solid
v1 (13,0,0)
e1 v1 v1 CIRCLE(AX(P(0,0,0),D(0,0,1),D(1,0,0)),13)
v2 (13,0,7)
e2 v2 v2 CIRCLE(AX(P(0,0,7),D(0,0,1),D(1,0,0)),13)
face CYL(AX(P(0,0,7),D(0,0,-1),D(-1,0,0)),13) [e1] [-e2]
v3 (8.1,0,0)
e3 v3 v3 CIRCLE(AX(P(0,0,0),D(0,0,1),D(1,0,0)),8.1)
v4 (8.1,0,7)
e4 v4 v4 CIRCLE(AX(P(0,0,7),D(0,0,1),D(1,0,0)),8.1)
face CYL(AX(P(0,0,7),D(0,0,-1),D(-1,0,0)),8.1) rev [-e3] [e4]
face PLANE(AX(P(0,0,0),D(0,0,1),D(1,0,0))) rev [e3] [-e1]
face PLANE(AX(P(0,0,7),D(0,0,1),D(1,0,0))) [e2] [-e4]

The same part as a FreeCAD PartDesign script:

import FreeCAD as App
import Part
import Sketcher

V = App.Vector
Q = App.Units.Quantity

doc = App.newDocument("Part")
params = doc.addObject("Spreadsheet::Sheet", "Params")
for row, (alias, value) in enumerate([
    ("sketch1_diameter", "26 mm"),
    ("sketch1_diameter2", "16.2 mm"),
    ("pad1_length", "7 mm"),
], start=1):
    params.set(f"A{row}", alias)
    params.set(f"B{row}", "=" + value)
    params.setAlias(f"B{row}", alias)

body = doc.addObject("PartDesign::Body", "Body")

# Sketch on XY plane
sketch1 = body.newObject("Sketcher::SketchObject", "Sketch")
sketch1.AttachmentSupport = (doc.getObject("XY_Plane"), [""])
sketch1.MapMode = "FlatFace"
sketch1.addGeometry(Part.Circle(V(0, 0, 0), V(0, 0, 1), 13), False)
sketch1.addGeometry(Part.Circle(V(0, 0, 0), V(0, 0, 1), 8), False)
sketch1.addConstraint(Sketcher.Constraint("Coincident", 0, 3, -1, 1))
sketch1.addConstraint(Sketcher.Constraint("Coincident", 1, 3, -1, 1))
sketch1.addConstraint(Sketcher.Constraint("Diameter", 0, Q("26 mm")))
sketch1.addConstraint(Sketcher.Constraint("Diameter", 1, Q("16.2 mm")))
sketch1.setExpression("Constraints[2]", "Params.sketch1_diameter")
sketch1.setExpression("Constraints[3]", "Params.sketch1_diameter2")
pad1 = body.newObject("PartDesign::Pad", "Pad")
pad1.Profile = sketch1
pad1.setExpression("Length", "Params.pad1_length")

doc.recompute()
